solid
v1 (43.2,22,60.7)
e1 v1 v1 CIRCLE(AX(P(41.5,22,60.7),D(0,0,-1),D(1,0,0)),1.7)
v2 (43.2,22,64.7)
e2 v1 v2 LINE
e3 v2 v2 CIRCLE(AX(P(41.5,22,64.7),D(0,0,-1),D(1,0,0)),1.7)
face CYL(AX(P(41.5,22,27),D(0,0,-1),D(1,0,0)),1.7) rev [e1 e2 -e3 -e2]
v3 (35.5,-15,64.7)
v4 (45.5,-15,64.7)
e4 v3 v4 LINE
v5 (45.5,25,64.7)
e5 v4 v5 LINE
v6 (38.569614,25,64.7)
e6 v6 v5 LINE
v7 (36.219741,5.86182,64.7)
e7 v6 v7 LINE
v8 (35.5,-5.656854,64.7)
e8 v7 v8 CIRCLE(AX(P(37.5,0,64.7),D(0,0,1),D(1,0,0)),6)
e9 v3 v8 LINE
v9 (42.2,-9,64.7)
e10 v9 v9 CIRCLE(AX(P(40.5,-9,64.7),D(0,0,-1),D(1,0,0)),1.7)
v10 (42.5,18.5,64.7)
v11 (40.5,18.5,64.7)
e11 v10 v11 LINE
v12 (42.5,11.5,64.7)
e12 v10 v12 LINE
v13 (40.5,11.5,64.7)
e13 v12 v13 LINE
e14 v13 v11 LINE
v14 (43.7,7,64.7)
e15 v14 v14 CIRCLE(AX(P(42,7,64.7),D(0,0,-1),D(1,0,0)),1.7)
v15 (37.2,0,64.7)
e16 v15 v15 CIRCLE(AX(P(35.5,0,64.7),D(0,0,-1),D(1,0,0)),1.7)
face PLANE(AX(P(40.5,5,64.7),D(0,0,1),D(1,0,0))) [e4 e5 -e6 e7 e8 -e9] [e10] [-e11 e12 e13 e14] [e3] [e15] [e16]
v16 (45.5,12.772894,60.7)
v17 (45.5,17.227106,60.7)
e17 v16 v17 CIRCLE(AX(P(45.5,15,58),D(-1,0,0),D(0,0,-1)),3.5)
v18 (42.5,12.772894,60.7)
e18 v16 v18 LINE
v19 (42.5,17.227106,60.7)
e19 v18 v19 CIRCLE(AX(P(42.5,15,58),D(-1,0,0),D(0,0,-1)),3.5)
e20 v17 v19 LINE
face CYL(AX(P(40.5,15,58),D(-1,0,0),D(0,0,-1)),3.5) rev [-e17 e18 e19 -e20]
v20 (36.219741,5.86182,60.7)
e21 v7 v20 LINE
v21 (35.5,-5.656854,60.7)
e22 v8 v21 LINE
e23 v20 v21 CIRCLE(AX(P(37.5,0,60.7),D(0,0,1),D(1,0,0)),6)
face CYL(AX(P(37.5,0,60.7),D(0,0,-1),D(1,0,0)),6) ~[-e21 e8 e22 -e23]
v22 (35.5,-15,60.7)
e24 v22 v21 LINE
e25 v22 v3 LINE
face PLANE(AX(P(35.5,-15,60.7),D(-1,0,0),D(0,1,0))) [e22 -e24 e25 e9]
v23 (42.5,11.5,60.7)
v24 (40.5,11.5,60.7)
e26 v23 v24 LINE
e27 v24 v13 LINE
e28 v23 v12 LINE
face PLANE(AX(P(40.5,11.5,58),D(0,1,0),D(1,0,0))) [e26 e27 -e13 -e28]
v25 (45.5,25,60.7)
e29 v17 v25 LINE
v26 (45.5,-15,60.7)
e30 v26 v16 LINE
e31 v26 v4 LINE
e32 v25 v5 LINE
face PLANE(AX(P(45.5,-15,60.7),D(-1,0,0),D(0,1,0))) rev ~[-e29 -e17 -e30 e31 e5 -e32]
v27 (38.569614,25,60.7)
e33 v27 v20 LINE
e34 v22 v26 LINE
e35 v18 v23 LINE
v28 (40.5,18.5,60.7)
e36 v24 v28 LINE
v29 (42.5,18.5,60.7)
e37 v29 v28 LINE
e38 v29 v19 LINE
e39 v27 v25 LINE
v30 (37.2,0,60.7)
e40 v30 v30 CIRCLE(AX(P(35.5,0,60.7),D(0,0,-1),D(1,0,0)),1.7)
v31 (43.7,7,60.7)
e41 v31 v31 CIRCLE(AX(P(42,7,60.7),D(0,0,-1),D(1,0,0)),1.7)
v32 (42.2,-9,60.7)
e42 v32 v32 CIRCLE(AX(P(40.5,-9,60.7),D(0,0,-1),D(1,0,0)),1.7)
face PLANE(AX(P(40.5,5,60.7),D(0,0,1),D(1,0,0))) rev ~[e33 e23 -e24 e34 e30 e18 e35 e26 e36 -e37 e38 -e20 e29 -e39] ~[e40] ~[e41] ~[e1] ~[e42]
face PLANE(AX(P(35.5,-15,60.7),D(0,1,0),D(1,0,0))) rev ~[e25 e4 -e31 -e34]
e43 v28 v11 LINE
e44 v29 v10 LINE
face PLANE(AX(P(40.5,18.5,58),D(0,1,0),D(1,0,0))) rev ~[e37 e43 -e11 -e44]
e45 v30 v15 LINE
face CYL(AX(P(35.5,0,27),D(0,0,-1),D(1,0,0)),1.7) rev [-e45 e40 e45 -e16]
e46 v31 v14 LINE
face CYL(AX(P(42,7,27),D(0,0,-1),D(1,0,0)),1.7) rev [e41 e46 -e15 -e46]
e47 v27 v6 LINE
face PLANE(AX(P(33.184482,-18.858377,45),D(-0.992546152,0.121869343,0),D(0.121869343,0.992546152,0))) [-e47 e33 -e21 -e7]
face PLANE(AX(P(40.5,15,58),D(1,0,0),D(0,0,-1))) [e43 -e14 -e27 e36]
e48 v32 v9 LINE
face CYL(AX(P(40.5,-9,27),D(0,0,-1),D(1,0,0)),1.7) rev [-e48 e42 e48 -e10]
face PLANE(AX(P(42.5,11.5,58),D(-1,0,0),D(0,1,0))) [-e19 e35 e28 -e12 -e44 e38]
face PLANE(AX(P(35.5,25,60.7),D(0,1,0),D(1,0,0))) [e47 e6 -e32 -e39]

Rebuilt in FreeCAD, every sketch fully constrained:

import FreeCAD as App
import Part
import Sketcher
from FreeCAD import Vector
Q = App.Units.Quantity


def add_polygon(sketch, points):
    """Adds a closed chain of lines whose ends are joined by coincident constraints."""
    first, n = sketch.GeometryCount, len(points)
    for a, b in zip(points, points[1:] + points[:1]):
        sketch.addGeometry(Part.LineSegment(App.Vector(*a, 0), App.Vector(*b, 0)), False)
    for i in range(n):
        sketch.addConstraint(Sketcher.Constraint("Coincident", first + i, 2, first + (i + 1) % n, 1))

doc = App.newDocument("Part")
body = doc.addObject("PartDesign::Body", "Body")

# Sketch on XY plane
sketch1 = doc.addObject("Sketcher::SketchObject", "Sketch")
body.addObject(sketch1)
sketch1.AttachmentSupport = (doc.XY_Plane, [""])
sketch1.MapMode = "FlatFace"
sketch1.AttachmentOffset = App.Placement(Vector(0, 0, 27), App.Rotation())
sketch1.addGeometry(Part.Circle(Vector(41, -9, 0), Vector(0, 0, 1), 1.7), False)
sketch1.addConstraint(Sketcher.Constraint("Diameter", 0, Q("3.4 mm")))
sketch1.addConstraint(Sketcher.Constraint("DistanceX", -1, 1, 0, 3, Q("41 mm")))
sketch1.addConstraint(Sketcher.Constraint("DistanceY", 0, 3, -1, 1, Q("9 mm")))
pad1 = doc.addObject("PartDesign::Pad", "Pad")
body.addObject(pad1)
pad1.Profile = sketch1
pad1.Length = 50
body2 = doc.addObject("PartDesign::Body", "Body001")

# Sketch on XY plane
sketch2 = doc.addObject("Sketcher::SketchObject", "Sketch001")
body2.addObject(sketch2)
sketch2.AttachmentSupport = (doc.getObject("XY_Plane001"), [""])
sketch2.MapMode = "FlatFace"
sketch2.AttachmentOffset = App.Placement(Vector(0, 0, 27), App.Rotation())
sketch2.addGeometry(Part.Circle(Vector(42, 22, 0), Vector(0, 0, 1), 1.7), False)
sketch2.addConstraint(Sketcher.Constraint("Diameter", 0, Q("3.4 mm")))
sketch2.addConstraint(Sketcher.Constraint("DistanceX", -1, 1, 0, 3, Q("42 mm")))
sketch2.addConstraint(Sketcher.Constraint("DistanceY", -1, 1, 0, 3, Q("22 mm")))
pad2 = doc.addObject("PartDesign::Pad", "Pad001")
body2.addObject(pad2)
pad2.Profile = sketch2
pad2.Length = 50
body3 = doc.addObject("PartDesign::Body", "Body002")

# Sketch on XY plane
sketch3 = doc.addObject("Sketcher::SketchObject", "Sketch002")
body3.addObject(sketch3)
sketch3.AttachmentSupport = (doc.getObject("XY_Plane002"), [""])
sketch3.MapMode = "FlatFace"
sketch3.AttachmentOffset = App.Placement(Vector(0, 0, 27), App.Rotation())
sketch3.addGeometry(Part.Circle(Vector(42.5, 7, 0), Vector(0, 0, 1), 1.7), False)
sketch3.addConstraint(Sketcher.Constraint("Diameter", 0, Q("3.4 mm")))
sketch3.addConstraint(Sketcher.Constraint("DistanceY", -1, 1, 0, 3, Q("7 mm")))
sketch3.addConstraint(Sketcher.Constraint("DistanceX", -1, 1, 0, 3, Q("42.5 mm")))
pad3 = doc.addObject("PartDesign::Pad", "Pad002")
body3.addObject(pad3)
pad3.Profile = sketch3
pad3.Length = 50
body4 = doc.addObject("PartDesign::Body", "Body003")
body4.AllowCompound = True

# Sketch on XY plane
sketch4 = doc.addObject("Sketcher::SketchObject", "Sketch003")
body4.addObject(sketch4)
sketch4.AttachmentSupport = (doc.getObject("XY_Plane003"), [""])
sketch4.MapMode = "FlatFace"
sketch4.AttachmentOffset = App.Placement(Vector(0, 0, 27), App.Rotation())
sketch4.addGeometry(Part.Circle(Vector(36, 0, 0), Vector(0, 0, 1), 1.7), False)
sketch4.addConstraint(Sketcher.Constraint("PointOnObject", 0, 3, -1))
sketch4.addConstraint(Sketcher.Constraint("Diameter", 0, Q("3.4 mm")))
sketch4.addConstraint(Sketcher.Constraint("DistanceX", -1, 1, 0, 3, Q("36 mm")))
pad4 = doc.addObject("PartDesign::Pad", "Pad003")
body4.addObject(pad4)
pad4.Profile = sketch4
pad4.Length = 50
doc.recompute()

boolean = doc.addObject("PartDesign::Boolean", "Boolean")
body4.addObject(boolean)
boolean.Type = "Fuse"
boolean.addObjects([body])
doc.recompute()

boolean2 = doc.addObject("PartDesign::Boolean", "Boolean001")
body4.addObject(boolean2)
boolean2.Type = "Fuse"
boolean2.addObjects([body2])
doc.recompute()

boolean3 = doc.addObject("PartDesign::Boolean", "Boolean002")
body4.addObject(boolean3)
boolean3.Type = "Fuse"
boolean3.addObjects([body3])
body5 = doc.addObject("PartDesign::Body", "Body004")

# Sketch on XY plane
sketch5 = doc.addObject("Sketcher::SketchObject", "Sketch004")
body5.addObject(sketch5)
sketch5.AttachmentSupport = (doc.getObject("XY_Plane004"), [""])
sketch5.MapMode = "FlatFace"
sketch5.addGeometry(Part.Circle(Vector(0, 0, 0), Vector(0, 0, 1), 3.5), False)
sketch5.addConstraint(Sketcher.Constraint("Coincident", 0, 3, -1, 1))
sketch5.addConstraint(Sketcher.Constraint("Diameter", 0, Q("7 mm")))
pad5 = doc.addObject("PartDesign::Pad", "Pad004")
body5.addObject(pad5)
pad5.Profile = sketch5
pad5.Length = 8
body6 = doc.addObject("PartDesign::Body", "Body005")
doc.recompute()

body5.Placement = App.Placement(Vector(0, 0, 0), App.Rotation(Vector(0, 1, 0), 90))
boolean4 = doc.addObject("PartDesign::Boolean", "Boolean003")
body6.addObject(boolean4)
boolean4.Type = "Fuse"
boolean4.addObjects([body5])
body7 = doc.addObject("PartDesign::Body", "Body006")
doc.recompute()

body6.Placement = App.Placement(Vector(41, 15, 58), App.Rotation(Vector(0, 0, 1), 0))
boolean5 = doc.addObject("PartDesign::Boolean", "Boolean004")
body7.addObject(boolean5)
boolean5.Type = "Fuse"
boolean5.addObjects([body6])
body8 = doc.addObject("PartDesign::Body", "Body007")

# Sketch on XY plane
sketch6 = doc.addObject("Sketcher::SketchObject", "Sketch005")
body8.addObject(sketch6)
sketch6.AttachmentSupport = (doc.getObject("XY_Plane007"), [""])
sketch6.MapMode = "FlatFace"
sketch6.AttachmentOffset = App.Placement(Vector(0, 0, 58), App.Rotation())
add_polygon(sketch6, [(41, 18.5), (41, 11.5), (43, 11.5), (43, 18.5)])  # lines 0-3
sketch6.addConstraint(Sketcher.Constraint("Vertical", 0))
sketch6.addConstraint(Sketcher.Constraint("Horizontal", 1))
sketch6.addConstraint(Sketcher.Constraint("Vertical", 2))
sketch6.addConstraint(Sketcher.Constraint("Horizontal", 3))
sketch6.addConstraint(Sketcher.Constraint("DistanceX", 1, 1, 1, 2, Q("2 mm")))
sketch6.addConstraint(Sketcher.Constraint("DistanceY", 0, 2, 0, 1, Q("7 mm")))
sketch6.addConstraint(Sketcher.Constraint("DistanceX", -1, 1, 0, 2, Q("41 mm")))
sketch6.addConstraint(Sketcher.Constraint("DistanceY", -1, 1, 0, 2, Q("11.5 mm")))
pad6 = doc.addObject("PartDesign::Pad", "Pad005")
body8.addObject(pad6)
pad6.Profile = sketch6
pad6.Length = 10
doc.recompute()

boolean6 = doc.addObject("PartDesign::Boolean", "Boolean005")
body8.addObject(boolean6)
boolean6.Type = "Fuse"
boolean6.addObjects([body7])
body9 = doc.addObject("PartDesign::Body", "Body008")

# Sketch on XY plane
sketch7 = doc.addObject("Sketcher::SketchObject", "Sketch006")
body9.addObject(sketch7)
sketch7.AttachmentSupport = (doc.getObject("XY_Plane008"), [""])
sketch7.MapMode = "FlatFace"
add_polygon(sketch7, [(0, 50), (0, 0), (66, 0), (66, 50)])  # lines 0-3
sketch7.addConstraint(Sketcher.Constraint("Vertical", 0))
sketch7.addConstraint(Sketcher.Constraint("Horizontal", 1))
sketch7.addConstraint(Sketcher.Constraint("Vertical", 2))
sketch7.addConstraint(Sketcher.Constraint("Horizontal", 3))
sketch7.addConstraint(Sketcher.Constraint("Coincident", 0, 2, -1, 1))
sketch7.addConstraint(Sketcher.Constraint("DistanceX", 1, 1, 1, 2, Q("66 mm")))
sketch7.addConstraint(Sketcher.Constraint("DistanceY", 0, 2, 0, 1, Q("50 mm")))
pad7 = doc.addObject("PartDesign::Pad", "Pad006")
body9.addObject(pad7)
pad7.Profile = sketch7
pad7.Length = 25
body10 = doc.addObject("PartDesign::Body", "Body009")
doc.recompute()

body9.Placement = App.Placement(Vector(-31.823564, -10.815, 45), App.Rotation(Vector(0, 0, 1), 353))
boolean7 = doc.addObject("PartDesign::Boolean", "Boolean006")
body10.addObject(boolean7)
boolean7.Type = "Fuse"
boolean7.addObjects([body9])
body11 = doc.addObject("PartDesign::Body", "Body010")

# Sketch on XY plane
sketch8 = doc.addObject("Sketcher::SketchObject", "Sketch007")
body11.addObject(sketch8)
sketch8.AttachmentSupport = (doc.getObject("XY_Plane010"), [""])
sketch8.MapMode = "FlatFace"
sketch8.AttachmentOffset = App.Placement(Vector(0, 0, 60.7), App.Rotation())
add_polygon(sketch8, [(36, 25), (36, -15), (46, -15), (46, 25)])  # lines 0-3
sketch8.addConstraint(Sketcher.Constraint("Vertical", 0))
sketch8.addConstraint(Sketcher.Constraint("Horizontal", 1))
sketch8.addConstraint(Sketcher.Constraint("Vertical", 2))
sketch8.addConstraint(Sketcher.Constraint("Horizontal", 3))
sketch8.addConstraint(Sketcher.Constraint("DistanceX", 1, 1, 1, 2, Q("10 mm")))
sketch8.addConstraint(Sketcher.Constraint("DistanceY", 0, 2, 0, 1, Q("40 mm")))
sketch8.addConstraint(Sketcher.Constraint("DistanceX", -1, 1, 0, 2, Q("36 mm")))
sketch8.addConstraint(Sketcher.Constraint("DistanceY", 0, 2, -1, 1, Q("15 mm")))
pad8 = doc.addObject("PartDesign::Pad", "Pad007")
body11.addObject(pad8)
pad8.Profile = sketch8
pad8.Length = 4
doc.recompute()

boolean8 = doc.addObject("PartDesign::Boolean", "Boolean007")
body11.addObject(boolean8)
boolean8.Type = "Cut"
boolean8.addObjects([body10])
body12 = doc.addObject("PartDesign::Body", "Body011")

# Sketch on XY plane
sketch9 = doc.addObject("Sketcher::SketchObject", "Sketch008")
body12.addObject(sketch9)
sketch9.AttachmentSupport = (doc.getObject("XY_Plane011"), [""])
sketch9.MapMode = "FlatFace"
sketch9.AttachmentOffset = App.Placement(Vector(0, 0, 60.7), App.Rotation())
sketch9.addGeometry(Part.Circle(Vector(38, 0, 0), Vector(0, 0, 1), 6), False)
sketch9.addConstraint(Sketcher.Constraint("PointOnObject", 0, 3, -1))
sketch9.addConstraint(Sketcher.Constraint("Diameter", 0, Q("12 mm")))
sketch9.addConstraint(Sketcher.Constraint("DistanceX", -1, 1, 0, 3, Q("38 mm")))
pad9 = doc.addObject("PartDesign::Pad", "Pad008")
body12.addObject(pad9)
pad9.Profile = sketch9
pad9.Length = 4
doc.recompute()

boolean9 = doc.addObject("PartDesign::Boolean", "Boolean008")
body12.addObject(boolean9)
boolean9.Type = "Fuse"
boolean9.addObjects([body11])
doc.recompute()

boolean10 = doc.addObject("PartDesign::Boolean", "Boolean009")
body12.addObject(boolean10)
boolean10.Type = "Cut"
boolean10.addObjects([body8])
doc.recompute()

boolean11 = doc.addObject("PartDesign::Boolean", "Boolean010")
body12.addObject(boolean11)
boolean11.Type = "Cut"
boolean11.addObjects([body4])
body13 = doc.addObject("PartDesign::Body", "Body012")
doc.recompute()

body12.Placement = App.Placement(Vector(-0.5, 0, 0), App.Rotation(Vector(0, 0, 1), 0))
boolean12 = doc.addObject("PartDesign::Boolean", "Boolean011")
body13.addObject(boolean12)
boolean12.Type = "Fuse"
boolean12.addObjects([body12])

doc.recompute()
